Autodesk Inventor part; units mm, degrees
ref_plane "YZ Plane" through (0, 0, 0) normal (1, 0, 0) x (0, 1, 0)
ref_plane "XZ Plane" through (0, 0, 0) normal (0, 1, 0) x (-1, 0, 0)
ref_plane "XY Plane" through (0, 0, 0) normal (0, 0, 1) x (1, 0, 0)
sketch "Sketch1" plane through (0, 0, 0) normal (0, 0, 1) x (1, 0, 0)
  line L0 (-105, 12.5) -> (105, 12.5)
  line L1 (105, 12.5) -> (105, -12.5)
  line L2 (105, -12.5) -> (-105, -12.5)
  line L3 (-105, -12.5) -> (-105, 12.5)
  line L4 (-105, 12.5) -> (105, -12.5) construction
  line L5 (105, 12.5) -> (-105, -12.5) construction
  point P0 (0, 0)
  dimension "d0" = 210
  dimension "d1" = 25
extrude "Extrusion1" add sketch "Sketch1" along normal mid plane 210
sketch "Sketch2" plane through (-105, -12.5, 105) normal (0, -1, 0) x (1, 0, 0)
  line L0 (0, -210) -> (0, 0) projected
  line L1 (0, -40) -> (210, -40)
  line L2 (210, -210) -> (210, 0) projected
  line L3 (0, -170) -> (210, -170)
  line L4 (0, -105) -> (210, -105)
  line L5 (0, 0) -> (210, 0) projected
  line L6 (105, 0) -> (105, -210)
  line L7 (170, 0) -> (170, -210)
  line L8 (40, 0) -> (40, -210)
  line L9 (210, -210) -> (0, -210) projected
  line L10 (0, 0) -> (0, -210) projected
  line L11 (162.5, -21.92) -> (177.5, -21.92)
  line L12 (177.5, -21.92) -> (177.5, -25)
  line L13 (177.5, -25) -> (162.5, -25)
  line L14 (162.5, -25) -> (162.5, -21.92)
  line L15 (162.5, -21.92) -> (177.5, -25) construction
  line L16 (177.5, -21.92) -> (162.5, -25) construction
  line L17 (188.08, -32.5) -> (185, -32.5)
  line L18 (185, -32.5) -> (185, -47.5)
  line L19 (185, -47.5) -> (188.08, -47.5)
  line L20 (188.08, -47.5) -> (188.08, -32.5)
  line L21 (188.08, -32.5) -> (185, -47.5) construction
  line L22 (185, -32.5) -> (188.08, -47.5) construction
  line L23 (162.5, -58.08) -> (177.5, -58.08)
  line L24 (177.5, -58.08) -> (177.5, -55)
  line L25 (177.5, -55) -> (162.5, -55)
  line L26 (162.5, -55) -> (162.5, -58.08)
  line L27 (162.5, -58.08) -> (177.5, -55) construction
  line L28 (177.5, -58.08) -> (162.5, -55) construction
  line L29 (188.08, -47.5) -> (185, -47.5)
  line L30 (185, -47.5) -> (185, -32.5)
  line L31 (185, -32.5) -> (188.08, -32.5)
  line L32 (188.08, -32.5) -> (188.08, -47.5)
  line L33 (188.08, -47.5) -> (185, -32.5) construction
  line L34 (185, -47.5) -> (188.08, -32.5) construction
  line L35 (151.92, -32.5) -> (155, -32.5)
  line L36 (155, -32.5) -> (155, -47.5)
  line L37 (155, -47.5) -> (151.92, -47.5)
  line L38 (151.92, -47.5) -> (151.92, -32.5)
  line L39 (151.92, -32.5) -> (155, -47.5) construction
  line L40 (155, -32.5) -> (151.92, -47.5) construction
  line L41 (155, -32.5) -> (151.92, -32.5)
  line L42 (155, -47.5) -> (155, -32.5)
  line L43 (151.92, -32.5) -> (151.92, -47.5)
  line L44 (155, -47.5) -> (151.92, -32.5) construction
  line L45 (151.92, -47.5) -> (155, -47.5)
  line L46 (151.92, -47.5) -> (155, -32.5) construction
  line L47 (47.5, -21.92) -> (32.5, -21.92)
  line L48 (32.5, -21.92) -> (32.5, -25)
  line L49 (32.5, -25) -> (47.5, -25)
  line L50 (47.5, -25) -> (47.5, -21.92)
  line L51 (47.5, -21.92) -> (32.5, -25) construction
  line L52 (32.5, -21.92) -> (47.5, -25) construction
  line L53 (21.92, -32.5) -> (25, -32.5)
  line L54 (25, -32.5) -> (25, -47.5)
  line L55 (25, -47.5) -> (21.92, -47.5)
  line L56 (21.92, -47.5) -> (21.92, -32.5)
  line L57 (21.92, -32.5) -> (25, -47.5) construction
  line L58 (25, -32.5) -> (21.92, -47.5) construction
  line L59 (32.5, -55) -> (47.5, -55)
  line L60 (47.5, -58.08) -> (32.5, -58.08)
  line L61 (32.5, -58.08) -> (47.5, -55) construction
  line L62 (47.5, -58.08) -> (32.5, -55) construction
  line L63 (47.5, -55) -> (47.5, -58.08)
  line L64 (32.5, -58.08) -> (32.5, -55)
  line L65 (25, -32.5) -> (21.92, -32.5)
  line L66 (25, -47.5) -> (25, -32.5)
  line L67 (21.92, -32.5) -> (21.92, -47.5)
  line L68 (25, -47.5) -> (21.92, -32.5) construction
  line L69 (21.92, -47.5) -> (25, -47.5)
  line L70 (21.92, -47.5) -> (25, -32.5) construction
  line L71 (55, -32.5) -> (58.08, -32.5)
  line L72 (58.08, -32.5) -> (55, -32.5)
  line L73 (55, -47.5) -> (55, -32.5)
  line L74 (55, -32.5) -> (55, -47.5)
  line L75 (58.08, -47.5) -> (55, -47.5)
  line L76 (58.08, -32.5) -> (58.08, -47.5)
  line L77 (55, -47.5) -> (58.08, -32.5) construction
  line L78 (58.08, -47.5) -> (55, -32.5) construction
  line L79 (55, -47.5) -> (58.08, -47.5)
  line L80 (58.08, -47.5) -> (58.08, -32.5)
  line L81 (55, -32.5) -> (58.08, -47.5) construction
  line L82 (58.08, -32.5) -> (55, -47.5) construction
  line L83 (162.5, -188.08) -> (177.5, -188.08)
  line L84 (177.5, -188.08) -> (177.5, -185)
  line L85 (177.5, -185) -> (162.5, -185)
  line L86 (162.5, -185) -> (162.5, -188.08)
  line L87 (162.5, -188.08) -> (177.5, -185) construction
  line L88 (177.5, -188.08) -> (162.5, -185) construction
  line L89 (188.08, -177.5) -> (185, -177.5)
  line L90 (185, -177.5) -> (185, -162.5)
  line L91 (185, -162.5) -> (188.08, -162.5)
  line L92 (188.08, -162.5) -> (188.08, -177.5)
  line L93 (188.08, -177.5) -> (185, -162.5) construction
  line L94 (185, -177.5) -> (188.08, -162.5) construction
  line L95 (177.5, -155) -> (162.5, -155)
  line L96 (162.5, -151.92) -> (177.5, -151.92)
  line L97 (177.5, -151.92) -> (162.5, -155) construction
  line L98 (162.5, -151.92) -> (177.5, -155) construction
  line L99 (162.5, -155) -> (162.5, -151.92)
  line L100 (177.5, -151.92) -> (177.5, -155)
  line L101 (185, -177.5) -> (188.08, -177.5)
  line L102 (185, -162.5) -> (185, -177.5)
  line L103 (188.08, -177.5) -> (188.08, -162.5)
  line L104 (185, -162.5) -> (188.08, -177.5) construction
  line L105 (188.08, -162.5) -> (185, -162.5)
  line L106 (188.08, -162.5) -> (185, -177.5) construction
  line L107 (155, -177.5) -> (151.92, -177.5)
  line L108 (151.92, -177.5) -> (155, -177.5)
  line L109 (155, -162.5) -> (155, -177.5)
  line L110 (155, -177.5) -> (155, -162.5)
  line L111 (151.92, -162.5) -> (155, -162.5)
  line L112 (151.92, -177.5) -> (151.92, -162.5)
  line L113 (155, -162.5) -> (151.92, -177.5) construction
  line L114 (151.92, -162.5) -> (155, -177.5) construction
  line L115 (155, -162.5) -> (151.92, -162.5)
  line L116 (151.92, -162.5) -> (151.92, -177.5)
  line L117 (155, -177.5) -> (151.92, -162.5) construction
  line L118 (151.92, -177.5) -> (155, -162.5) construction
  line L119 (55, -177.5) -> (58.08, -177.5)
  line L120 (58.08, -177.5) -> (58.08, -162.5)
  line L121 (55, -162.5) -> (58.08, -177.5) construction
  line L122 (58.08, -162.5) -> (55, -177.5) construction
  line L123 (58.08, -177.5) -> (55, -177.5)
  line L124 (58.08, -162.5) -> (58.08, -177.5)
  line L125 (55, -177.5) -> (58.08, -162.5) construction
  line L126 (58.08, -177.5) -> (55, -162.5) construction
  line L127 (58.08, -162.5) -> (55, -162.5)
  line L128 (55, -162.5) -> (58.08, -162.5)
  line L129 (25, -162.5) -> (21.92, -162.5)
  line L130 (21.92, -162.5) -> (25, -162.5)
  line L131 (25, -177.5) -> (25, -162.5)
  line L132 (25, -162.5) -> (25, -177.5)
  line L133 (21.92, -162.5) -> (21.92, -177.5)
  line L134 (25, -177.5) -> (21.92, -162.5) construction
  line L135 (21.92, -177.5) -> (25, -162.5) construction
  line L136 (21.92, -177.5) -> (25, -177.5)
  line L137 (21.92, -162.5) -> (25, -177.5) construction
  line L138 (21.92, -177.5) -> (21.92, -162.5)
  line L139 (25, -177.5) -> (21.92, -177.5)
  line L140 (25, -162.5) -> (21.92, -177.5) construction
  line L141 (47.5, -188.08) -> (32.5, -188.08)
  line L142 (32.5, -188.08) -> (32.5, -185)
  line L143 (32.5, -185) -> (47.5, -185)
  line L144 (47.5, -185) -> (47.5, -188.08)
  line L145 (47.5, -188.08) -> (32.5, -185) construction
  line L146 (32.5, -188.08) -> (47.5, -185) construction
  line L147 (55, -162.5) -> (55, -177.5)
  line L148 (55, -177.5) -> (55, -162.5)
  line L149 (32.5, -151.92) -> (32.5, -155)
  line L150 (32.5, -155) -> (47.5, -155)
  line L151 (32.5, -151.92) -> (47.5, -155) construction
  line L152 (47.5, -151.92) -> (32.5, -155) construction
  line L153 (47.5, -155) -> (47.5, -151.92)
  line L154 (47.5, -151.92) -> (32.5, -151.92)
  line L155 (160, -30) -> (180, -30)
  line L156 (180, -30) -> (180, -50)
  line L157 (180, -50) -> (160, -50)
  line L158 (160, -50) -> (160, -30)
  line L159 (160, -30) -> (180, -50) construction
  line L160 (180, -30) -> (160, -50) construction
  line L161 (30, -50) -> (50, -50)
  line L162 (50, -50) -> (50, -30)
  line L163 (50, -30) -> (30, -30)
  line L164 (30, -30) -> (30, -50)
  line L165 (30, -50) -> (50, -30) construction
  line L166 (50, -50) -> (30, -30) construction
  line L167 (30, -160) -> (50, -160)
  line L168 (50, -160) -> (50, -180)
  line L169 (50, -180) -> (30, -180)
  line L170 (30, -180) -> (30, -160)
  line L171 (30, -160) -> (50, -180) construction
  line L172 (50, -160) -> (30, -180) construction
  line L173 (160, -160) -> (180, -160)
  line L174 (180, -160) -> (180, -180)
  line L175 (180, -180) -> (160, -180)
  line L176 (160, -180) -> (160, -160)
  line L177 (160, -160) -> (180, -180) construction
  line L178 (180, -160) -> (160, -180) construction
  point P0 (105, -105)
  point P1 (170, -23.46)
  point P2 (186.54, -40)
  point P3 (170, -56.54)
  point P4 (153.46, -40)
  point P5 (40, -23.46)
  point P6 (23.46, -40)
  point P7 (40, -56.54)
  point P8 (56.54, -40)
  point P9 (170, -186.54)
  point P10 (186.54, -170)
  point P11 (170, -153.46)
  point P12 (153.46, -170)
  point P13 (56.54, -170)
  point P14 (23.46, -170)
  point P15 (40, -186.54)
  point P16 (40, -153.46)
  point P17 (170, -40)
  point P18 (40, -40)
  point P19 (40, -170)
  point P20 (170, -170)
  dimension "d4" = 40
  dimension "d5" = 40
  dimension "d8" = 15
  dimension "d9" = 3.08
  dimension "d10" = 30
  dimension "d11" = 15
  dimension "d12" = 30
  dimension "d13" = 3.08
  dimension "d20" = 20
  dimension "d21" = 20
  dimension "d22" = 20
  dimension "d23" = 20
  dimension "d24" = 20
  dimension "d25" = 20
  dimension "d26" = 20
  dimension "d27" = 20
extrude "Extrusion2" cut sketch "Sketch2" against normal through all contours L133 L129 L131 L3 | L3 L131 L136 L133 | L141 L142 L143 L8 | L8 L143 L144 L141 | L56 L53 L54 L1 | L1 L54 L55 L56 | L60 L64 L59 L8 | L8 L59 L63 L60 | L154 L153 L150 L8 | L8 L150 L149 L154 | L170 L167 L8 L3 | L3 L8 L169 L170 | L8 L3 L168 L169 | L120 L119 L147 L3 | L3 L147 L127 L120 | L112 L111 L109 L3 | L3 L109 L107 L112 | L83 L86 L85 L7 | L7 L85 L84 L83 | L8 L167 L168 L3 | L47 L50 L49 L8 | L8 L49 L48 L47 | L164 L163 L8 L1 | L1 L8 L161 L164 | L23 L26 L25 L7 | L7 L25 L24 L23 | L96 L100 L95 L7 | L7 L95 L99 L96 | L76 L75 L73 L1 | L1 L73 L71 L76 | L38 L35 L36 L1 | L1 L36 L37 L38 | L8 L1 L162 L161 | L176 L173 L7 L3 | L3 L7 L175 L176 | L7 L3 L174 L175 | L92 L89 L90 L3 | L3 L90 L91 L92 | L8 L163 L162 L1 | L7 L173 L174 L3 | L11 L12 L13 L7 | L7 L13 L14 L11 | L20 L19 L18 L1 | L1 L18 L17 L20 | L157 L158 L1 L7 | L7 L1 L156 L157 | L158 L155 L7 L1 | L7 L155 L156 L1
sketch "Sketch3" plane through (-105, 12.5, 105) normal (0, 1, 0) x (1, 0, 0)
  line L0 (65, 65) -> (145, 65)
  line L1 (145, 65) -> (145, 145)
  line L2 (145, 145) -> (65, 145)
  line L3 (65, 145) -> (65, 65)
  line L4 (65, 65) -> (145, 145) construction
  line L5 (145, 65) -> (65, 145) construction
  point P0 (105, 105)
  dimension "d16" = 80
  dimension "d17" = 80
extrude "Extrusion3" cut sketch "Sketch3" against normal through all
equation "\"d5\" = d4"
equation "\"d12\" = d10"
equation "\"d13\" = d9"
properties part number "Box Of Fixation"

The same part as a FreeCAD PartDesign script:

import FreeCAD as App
import Part
import Sketcher
from FreeCAD import Vector

doc = App.newDocument("Part")
body = doc.addObject("PartDesign::Body", "Body")

# Sketch on XY plane
sketch1 = doc.addObject("Sketcher::SketchObject", "Sketch")
body.addObject(sketch1)
sketch1.AttachmentSupport = (doc.XY_Plane, [""])
sketch1.MapMode = "FlatFace"
sketch1.addGeometry([
    Part.LineSegment(Vector(105, 12.5, 0), Vector(-105, 12.5, 0)),
    Part.LineSegment(Vector(-105, 12.5, 0), Vector(-105, -12.5, 0)),
    Part.LineSegment(Vector(-105, -12.5, 0), Vector(105, -12.5, 0)),
    Part.LineSegment(Vector(105, -12.5, 0), Vector(105, 12.5, 0)),
], False)
sketch1.addConstraint([
    Sketcher.Constraint("Coincident", 0, 2, 1, 1),
    Sketcher.Constraint("Coincident", 1, 2, 2, 1),
    Sketcher.Constraint("Coincident", 2, 2, 3, 1),
    Sketcher.Constraint("Coincident", 3, 2, 0, 1),
    Sketcher.Constraint("Horizontal", 0),
    Sketcher.Constraint("Vertical", 1),
    Sketcher.Constraint("Horizontal", 2),
    Sketcher.Constraint("Vertical", 3),
    Sketcher.Constraint("Symmetric", 0, 2, 2, 2, -1, 1),
    Sketcher.Constraint("DistanceX", 0, 2, 0, 1, 210.0),
    Sketcher.Constraint("DistanceY", 1, 2, 1, 1, 25.0),
])
pad1 = doc.addObject("PartDesign::Pad", "Pad")
body.addObject(pad1)
pad1.Profile = sketch1
pad1.Length = 210
pad1.Midplane = True

# Sketch on XZ plane
sketch2 = doc.addObject("Sketcher::SketchObject", "Sketch001")
body.addObject(sketch2)
sketch2.AttachmentSupport = (doc.XZ_Plane, [""])
sketch2.MapMode = "FlatFace"
sketch2.AttachmentOffset = App.Placement(Vector(0, 0, 12.5), App.Rotation())
sketch2.addGeometry([
    Part.LineSegment(Vector(-83.08, -57.5, 0), Vector(-83.08, -72.5, 0)),  # 0
    Part.LineSegment(Vector(-83.08, -72.5, 0), Vector(-80, -72.5, 0)),  # 1
    Part.LineSegment(Vector(-80, -72.5, 0), Vector(-80, -57.5, 0)),  # 2
    Part.LineSegment(Vector(-80, -57.5, 0), Vector(-83.08, -57.5, 0)),  # 3
    Part.LineSegment(Vector(-72.5, -83.08, 0), Vector(-57.5, -83.08, 0)),  # 4
    Part.LineSegment(Vector(-57.5, -83.08, 0), Vector(-57.5, -80, 0)),  # 5
    Part.LineSegment(Vector(-57.5, -80, 0), Vector(-72.5, -80, 0)),  # 6
    Part.LineSegment(Vector(-72.5, -80, 0), Vector(-72.5, -83.08, 0)),  # 7
    Part.LineSegment(Vector(-83.08, 72.5, 0), Vector(-83.08, 57.5, 0)),  # 8
    Part.LineSegment(Vector(-83.08, 57.5, 0), Vector(-80, 57.5, 0)),  # 9
    Part.LineSegment(Vector(-80, 57.5, 0), Vector(-80, 72.5, 0)),  # 10
    Part.LineSegment(Vector(-80, 72.5, 0), Vector(-83.08, 72.5, 0)),  # 11
    Part.LineSegment(Vector(-72.5, 46.92, 0), Vector(-57.5, 46.92, 0)),  # 12
    Part.LineSegment(Vector(-57.5, 46.92, 0), Vector(-57.5, 50, 0)),  # 13
    Part.LineSegment(Vector(-57.5, 50, 0), Vector(-72.5, 50, 0)),  # 14
    Part.LineSegment(Vector(-72.5, 50, 0), Vector(-72.5, 46.92, 0)),  # 15
    Part.LineSegment(Vector(-57.5, -46.92, 0), Vector(-72.5, -46.92, 0)),  # 16
    Part.LineSegment(Vector(-72.5, -46.92, 0), Vector(-72.5, -50, 0)),  # 17
    Part.LineSegment(Vector(-72.5, -50, 0), Vector(-57.5, -50, 0)),  # 18
    Part.LineSegment(Vector(-57.5, -50, 0), Vector(-57.5, -46.92, 0)),  # 19
    Part.LineSegment(Vector(-75, -55, 0), Vector(-75, -75, 0)),  # 20
    Part.LineSegment(Vector(-75, -75, 0), Vector(-55, -75, 0)),  # 21
    Part.LineSegment(Vector(-55, -75, 0), Vector(-55, -55, 0)),  # 22
    Part.LineSegment(Vector(-55, -55, 0), Vector(-75, -55, 0)),  # 23
    Part.LineSegment(Vector(-46.92, -72.5, 0), Vector(-46.92, -57.5, 0)),  # 24
    Part.LineSegment(Vector(-46.92, -57.5, 0), Vector(-50, -57.5, 0)),  # 25
    Part.LineSegment(Vector(-50, -57.5, 0), Vector(-50, -72.5, 0)),  # 26
    Part.LineSegment(Vector(-50, -72.5, 0), Vector(-46.92, -72.5, 0)),  # 27
    Part.LineSegment(Vector(46.92, -57.5, 0), Vector(46.92, -72.5, 0)),  # 28
    Part.LineSegment(Vector(46.92, -72.5, 0), Vector(50, -72.5, 0)),  # 29
    Part.LineSegment(Vector(50, -72.5, 0), Vector(50, -57.5, 0)),  # 30
    Part.LineSegment(Vector(50, -57.5, 0), Vector(46.92, -57.5, 0)),  # 31
    Part.LineSegment(Vector(57.5, -83.08, 0), Vector(72.5, -83.08, 0)),  # 32
    Part.LineSegment(Vector(72.5, -83.08, 0), Vector(72.5, -80, 0)),  # 33
    Part.LineSegment(Vector(72.5, -80, 0), Vector(57.5, -80, 0)),  # 34
    Part.LineSegment(Vector(57.5, -80, 0), Vector(57.5, -83.08, 0)),  # 35
    Part.LineSegment(Vector(-57.5, 83.08, 0), Vector(-72.5, 83.08, 0)),  # 36
    Part.LineSegment(Vector(-72.5, 83.08, 0), Vector(-72.5, 80, 0)),  # 37
    Part.LineSegment(Vector(-72.5, 80, 0), Vector(-57.5, 80, 0)),  # 38
    Part.LineSegment(Vector(-57.5, 80, 0), Vector(-57.5, 83.08, 0)),  # 39
    Part.LineSegment(Vector(-75, 75, 0), Vector(-75, 55, 0)),  # 40
    Part.LineSegment(Vector(-75, 55, 0), Vector(-55, 55, 0)),  # 41
    Part.LineSegment(Vector(-55, 55, 0), Vector(-55, 75, 0)),  # 42
    Part.LineSegment(Vector(-55, 75, 0), Vector(-75, 75, 0)),  # 43
    Part.LineSegment(Vector(57.5, 46.92, 0), Vector(72.5, 46.92, 0)),  # 44
    Part.LineSegment(Vector(72.5, 46.92, 0), Vector(72.5, 50, 0)),  # 45
    Part.LineSegment(Vector(72.5, 50, 0), Vector(57.5, 50, 0)),  # 46
    Part.LineSegment(Vector(57.5, 50, 0), Vector(57.5, 46.92, 0)),  # 47
    Part.LineSegment(Vector(72.5, -46.92, 0), Vector(57.5, -46.92, 0)),  # 48
    Part.LineSegment(Vector(57.5, -46.92, 0), Vector(57.5, -50, 0)),  # 49
    Part.LineSegment(Vector(57.5, -50, 0), Vector(72.5, -50, 0)),  # 50
    Part.LineSegment(Vector(72.5, -50, 0), Vector(72.5, -46.92, 0)),  # 51
    Part.LineSegment(Vector(-46.92, 57.5, 0), Vector(-46.92, 72.5, 0)),  # 52
    Part.LineSegment(Vector(-46.92, 72.5, 0), Vector(-50, 72.5, 0)),  # 53
    Part.LineSegment(Vector(-50, 72.5, 0), Vector(-50, 57.5, 0)),  # 54
    Part.LineSegment(Vector(-50, 57.5, 0), Vector(-46.92, 57.5, 0)),  # 55
    Part.LineSegment(Vector(46.92, 72.5, 0), Vector(46.92, 57.5, 0)),  # 56
    Part.LineSegment(Vector(46.92, 57.5, 0), Vector(50, 57.5, 0)),  # 57
    Part.LineSegment(Vector(50, 57.5, 0), Vector(50, 72.5, 0)),  # 58
    Part.LineSegment(Vector(50, 72.5, 0), Vector(46.92, 72.5, 0)),  # 59
    Part.LineSegment(Vector(55, -55, 0), Vector(55, -75, 0)),  # 60
    Part.LineSegment(Vector(55, -75, 0), Vector(75, -75, 0)),  # 61
    Part.LineSegment(Vector(75, -75, 0), Vector(75, -55, 0)),  # 62
    Part.LineSegment(Vector(75, -55, 0), Vector(55, -55, 0)),  # 63
    Part.LineSegment(Vector(83.08, -72.5, 0), Vector(83.08, -57.5, 0)),  # 64
    Part.LineSegment(Vector(83.08, -57.5, 0), Vector(80, -57.5, 0)),  # 65
    Part.LineSegment(Vector(80, -57.5, 0), Vector(80, -72.5, 0)),  # 66
    Part.LineSegment(Vector(80, -72.5, 0), Vector(83.08, -72.5, 0)),  # 67
    Part.LineSegment(Vector(72.5, 83.08, 0), Vector(57.5, 83.08, 0)),  # 68
    Part.LineSegment(Vector(57.5, 83.08, 0), Vector(57.5, 80, 0)),  # 69
    Part.LineSegment(Vector(57.5, 80, 0), Vector(72.5, 80, 0)),  # 70
    Part.LineSegment(Vector(72.5, 80, 0), Vector(72.5, 83.08, 0)),  # 71
    Part.LineSegment(Vector(83.08, 57.5, 0), Vector(83.08, 72.5, 0)),  # 72
    Part.LineSegment(Vector(83.08, 72.5, 0), Vector(80, 72.5, 0)),  # 73
    Part.LineSegment(Vector(80, 72.5, 0), Vector(80, 57.5, 0)),  # 74
    Part.LineSegment(Vector(80, 57.5, 0), Vector(83.08, 57.5, 0)),  # 75
    Part.LineSegment(Vector(55, 55, 0), Vector(75, 55, 0)),  # 76
    Part.LineSegment(Vector(75, 55, 0), Vector(75, 75, 0)),  # 77
    Part.LineSegment(Vector(75, 75, 0), Vector(55, 75, 0)),  # 78
    Part.LineSegment(Vector(55, 75, 0), Vector(55, 55, 0)),  # 79
], False)
sketch2.addConstraint([
    Sketcher.Constraint("Coincident", 0, 2, 1, 1),
    Sketcher.Constraint("Coincident", 1, 2, 2, 1),
    Sketcher.Constraint("Coincident", 2, 2, 3, 1),
    Sketcher.Constraint("Coincident", 3, 2, 0, 1),
    Sketcher.Constraint("Coincident", 4, 2, 5, 1),
    Sketcher.Constraint("Coincident", 5, 2, 6, 1),
    Sketcher.Constraint("Coincident", 6, 2, 7, 1),
    Sketcher.Constraint("Coincident", 7, 2, 4, 1),
    Sketcher.Constraint("Coincident", 8, 2, 9, 1),
    Sketcher.Constraint("Coincident", 9, 2, 10, 1),
    Sketcher.Constraint("Coincident", 10, 2, 11, 1),
    Sketcher.Constraint("Coincident", 11, 2, 8, 1),
    Sketcher.Constraint("Coincident", 12, 2, 13, 1),
    Sketcher.Constraint("Coincident", 13, 2, 14, 1),
    Sketcher.Constraint("Coincident", 14, 2, 15, 1),
    Sketcher.Constraint("Coincident", 15, 2, 12, 1),
    Sketcher.Constraint("Coincident", 16, 2, 17, 1),
    Sketcher.Constraint("Coincident", 17, 2, 18, 1),
    Sketcher.Constraint("Coincident", 18, 2, 19, 1),
    Sketcher.Constraint("Coincident", 19, 2, 16, 1),
    Sketcher.Constraint("Coincident", 20, 2, 21, 1),
    Sketcher.Constraint("Coincident", 21, 2, 22, 1),
    Sketcher.Constraint("Coincident", 22, 2, 23, 1),
    Sketcher.Constraint("Coincident", 23, 2, 20, 1),
    Sketcher.Constraint("Coincident", 24, 2, 25, 1),
    Sketcher.Constraint("Coincident", 25, 2, 26, 1),
    Sketcher.Constraint("Coincident", 26, 2, 27, 1),
    Sketcher.Constraint("Coincident", 27, 2, 24, 1),
    Sketcher.Constraint("Coincident", 28, 2, 29, 1),
    Sketcher.Constraint("Coincident", 29, 2, 30, 1),
    Sketcher.Constraint("Coincident", 30, 2, 31, 1),
    Sketcher.Constraint("Coincident", 31, 2, 28, 1),
    Sketcher.Constraint("Coincident", 32, 2, 33, 1),
    Sketcher.Constraint("Coincident", 33, 2, 34, 1),
    Sketcher.Constraint("Coincident", 34, 2, 35, 1),
    Sketcher.Constraint("Coincident", 35, 2, 32, 1),
    Sketcher.Constraint("Coincident", 36, 2, 37, 1),
    Sketcher.Constraint("Coincident", 37, 2, 38, 1),
    Sketcher.Constraint("Coincident", 38, 2, 39, 1),
    Sketcher.Constraint("Coincident", 39, 2, 36, 1),
    Sketcher.Constraint("Coincident", 40, 2, 41, 1),
    Sketcher.Constraint("Coincident", 41, 2, 42, 1),
    Sketcher.Constraint("Coincident", 42, 2, 43, 1),
    Sketcher.Constraint("Coincident", 43, 2, 40, 1),
    Sketcher.Constraint("Coincident", 44, 2, 45, 1),
    Sketcher.Constraint("Coincident", 45, 2, 46, 1),
    Sketcher.Constraint("Coincident", 46, 2, 47, 1),
    Sketcher.Constraint("Coincident", 47, 2, 44, 1),
    Sketcher.Constraint("Coincident", 48, 2, 49, 1),
    Sketcher.Constraint("Coincident", 49, 2, 50, 1),
    Sketcher.Constraint("Coincident", 50, 2, 51, 1),
    Sketcher.Constraint("Coincident", 51, 2, 48, 1),
    Sketcher.Constraint("Coincident", 52, 2, 53, 1),
    Sketcher.Constraint("Coincident", 53, 2, 54, 1),
    Sketcher.Constraint("Coincident", 54, 2, 55, 1),
    Sketcher.Constraint("Coincident", 55, 2, 52, 1),
    Sketcher.Constraint("Coincident", 56, 2, 57, 1),
    Sketcher.Constraint("Coincident", 57, 2, 58, 1),
    Sketcher.Constraint("Coincident", 58, 2, 59, 1),
    Sketcher.Constraint("Coincident", 59, 2, 56, 1),
    Sketcher.Constraint("Coincident", 60, 2, 61, 1),
    Sketcher.Constraint("Coincident", 61, 2, 62, 1),
    Sketcher.Constraint("Coincident", 62, 2, 63, 1),
    Sketcher.Constraint("Coincident", 63, 2, 60, 1),
    Sketcher.Constraint("Coincident", 64, 2, 65, 1),
    Sketcher.Constraint("Coincident", 65, 2, 66, 1),
    Sketcher.Constraint("Coincident", 66, 2, 67, 1),
    Sketcher.Constraint("Coincident", 67, 2, 64, 1),
    Sketcher.Constraint("Coincident", 68, 2, 69, 1),
    Sketcher.Constraint("Coincident", 69, 2, 70, 1),
    Sketcher.Constraint("Coincident", 70, 2, 71, 1),
    Sketcher.Constraint("Coincident", 71, 2, 68, 1),
    Sketcher.Constraint("Coincident", 72, 2, 73, 1),
    Sketcher.Constraint("Coincident", 73, 2, 74, 1),
    Sketcher.Constraint("Coincident", 74, 2, 75, 1),
    Sketcher.Constraint("Coincident", 75, 2, 72, 1),
    Sketcher.Constraint("Coincident", 76, 2, 77, 1),
    Sketcher.Constraint("Coincident", 77, 2, 78, 1),
    Sketcher.Constraint("Coincident", 78, 2, 79, 1),
    Sketcher.Constraint("Coincident", 79, 2, 76, 1),
    Sketcher.Constraint("Vertical", 0),
    Sketcher.Constraint("Horizontal", 1),
    Sketcher.Constraint("Vertical", 2),
    Sketcher.Constraint("Horizontal", 3),
    Sketcher.Constraint("Horizontal", 4),
    Sketcher.Constraint("Vertical", 5),
    Sketcher.Constraint("Horizontal", 6),
    Sketcher.Constraint("Vertical", 7),
    Sketcher.Constraint("Vertical", 8),
    Sketcher.Constraint("Horizontal", 9),
    Sketcher.Constraint("Vertical", 10),
    Sketcher.Constraint("Horizontal", 11),
    Sketcher.Constraint("Horizontal", 12),
    Sketcher.Constraint("Vertical", 13),
    Sketcher.Constraint("Horizontal", 14),
    Sketcher.Constraint("Vertical", 15),
    Sketcher.Constraint("Horizontal", 16),
    Sketcher.Constraint("Vertical", 17),
    Sketcher.Constraint("Horizontal", 18),
    Sketcher.Constraint("Vertical", 19),
    Sketcher.Constraint("Vertical", 20),
    Sketcher.Constraint("Horizontal", 21),
    Sketcher.Constraint("Vertical", 22),
    Sketcher.Constraint("Horizontal", 23),
    Sketcher.Constraint("Vertical", 24),
    Sketcher.Constraint("Horizontal", 25),
    Sketcher.Constraint("Vertical", 26),
    Sketcher.Constraint("Horizontal", 27),
    Sketcher.Constraint("Vertical", 28),
    Sketcher.Constraint("Horizontal", 29),
    Sketcher.Constraint("Vertical", 30),
    Sketcher.Constraint("Horizontal", 31),
    Sketcher.Constraint("Horizontal", 32),
    Sketcher.Constraint("Vertical", 33),
    Sketcher.Constraint("Horizontal", 34),
    Sketcher.Constraint("Vertical", 35),
    Sketcher.Constraint("Horizontal", 36),
    Sketcher.Constraint("Vertical", 37),
    Sketcher.Constraint("Horizontal", 38),
    Sketcher.Constraint("Vertical", 39),
    Sketcher.Constraint("Vertical", 40),
    Sketcher.Constraint("Horizontal", 41),
    Sketcher.Constraint("Vertical", 42),
    Sketcher.Constraint("Horizontal", 43),
    Sketcher.Constraint("Horizontal", 44),
    Sketcher.Constraint("Vertical", 45),
    Sketcher.Constraint("Horizontal", 46),
    Sketcher.Constraint("Vertical", 47),
    Sketcher.Constraint("Horizontal", 48),
    Sketcher.Constraint("Vertical", 49),
    Sketcher.Constraint("Horizontal", 50),
    Sketcher.Constraint("Vertical", 51),
    Sketcher.Constraint("Vertical", 52),
    Sketcher.Constraint("Horizontal", 53),
    Sketcher.Constraint("Vertical", 54),
    Sketcher.Constraint("Horizontal", 55),
    Sketcher.Constraint("Vertical", 56),
    Sketcher.Constraint("Horizontal", 57),
    Sketcher.Constraint("Vertical", 58),
    Sketcher.Constraint("Horizontal", 59),
    Sketcher.Constraint("Vertical", 60),
    Sketcher.Constraint("Horizontal", 61),
    Sketcher.Constraint("Vertical", 62),
    Sketcher.Constraint("Horizontal", 63),
    Sketcher.Constraint("Vertical", 64),
    Sketcher.Constraint("Horizontal", 65),
    Sketcher.Constraint("Vertical", 66),
    Sketcher.Constraint("Horizontal", 67),
    Sketcher.Constraint("Horizontal", 68),
    Sketcher.Constraint("Vertical", 69),
    Sketcher.Constraint("Horizontal", 70),
    Sketcher.Constraint("Vertical", 71),
    Sketcher.Constraint("Vertical", 72),
    Sketcher.Constraint("Horizontal", 73),
    Sketcher.Constraint("Vertical", 74),
    Sketcher.Constraint("Horizontal", 75),
    Sketcher.Constraint("Horizontal", 76),
    Sketcher.Constraint("Vertical", 77),
    Sketcher.Constraint("Horizontal", 78),
    Sketcher.Constraint("Vertical", 79),
    Sketcher.Constraint("Symmetric", 32, 2, 36, 2, -1, 1),
    Sketcher.Constraint("Symmetric", 34, 2, 38, 2, -1, 1),
    Sketcher.Constraint("Symmetric", 16, 2, 44, 2, -1, 1),
    Sketcher.Constraint("Symmetric", 18, 2, 46, 2, -1, 1),
    Sketcher.Constraint("Symmetric", 12, 2, 48, 2, -1, 1),
    Sketcher.Constraint("Symmetric", 14, 2, 50, 2, -1, 1),
    Sketcher.Constraint("Symmetric", 28, 2, 52, 2, -1, 1),
    Sketcher.Constraint("Symmetric", 30, 2, 54, 2, -1, 1),
    Sketcher.Constraint("Symmetric", 24, 2, 56, 2, -1, 1),
    Sketcher.Constraint("Symmetric", 26, 2, 58, 2, -1, 1),
    Sketcher.Constraint("Symmetric", 42, 2, 60, 2, -1, 1),
    Sketcher.Constraint("Symmetric", 40, 2, 62, 2, -1, 1),
    Sketcher.Constraint("Symmetric", 8, 2, 64, 2, -1, 1),
    Sketcher.Constraint("Symmetric", 10, 2, 66, 2, -1, 1),
    Sketcher.Constraint("Symmetric", 4, 2, 68, 2, -1, 1),
    Sketcher.Constraint("Symmetric", 6, 2, 70, 2, -1, 1),
    Sketcher.Constraint("Symmetric", 0, 2, 72, 2, -1, 1),
    Sketcher.Constraint("Symmetric", 2, 2, 74, 2, -1, 1),
    Sketcher.Constraint("Symmetric", 23, 2, 76, 2, -1, 1),
    Sketcher.Constraint("Symmetric", 21, 2, 78, 2, -1, 1),
    Sketcher.Constraint("Symmetric", 27, 2, 28, 2, -2),
    Sketcher.Constraint("Symmetric", 25, 2, 30, 2, -2),
    Sketcher.Constraint("Symmetric", 7, 2, 32, 2, -2),
    Sketcher.Constraint("Symmetric", 5, 2, 34, 2, -2),
    Sketcher.Constraint("Symmetric", 15, 2, 44, 2, -2),
    Sketcher.Constraint("Symmetric", 13, 2, 46, 2, -2),
    Sketcher.Constraint("Symmetric", 21, 2, 60, 2, -2),
    Sketcher.Constraint("Symmetric", 23, 2, 62, 2, -2),
    Sketcher.Constraint("Symmetric", 3, 2, 64, 2, -2),
    Sketcher.Constraint("Symmetric", 1, 2, 66, 2, -2),
    Sketcher.Constraint("Horizontal", 3, 2, 24, 2),
    Sketcher.Constraint("Horizontal", 1, 2, 26, 2),
    Sketcher.Constraint("Vertical", 5, 2, 12, 2),
    Sketcher.Constraint("Vertical", 7, 2, 14, 2),
    Sketcher.Constraint("Equal", 11, 25),
    Sketcher.Constraint("Equal", 70, 0),
    Sketcher.Constraint("Equal", 75, 5),
    Sketcher.Constraint("Equal", 7, 13),
    Sketcher.Constraint("Equal", 78, 20),
    Sketcher.Constraint("DistanceX", 4, 1, 4, 2, 15.0),
    Sketcher.Constraint("DistanceX", 21, 1, 21, 2, 20.0),
    Sketcher.Constraint("DistanceX", 1, 1, 1, 2, 3.08),
    Sketcher.Constraint("DistanceX", 1, 2, -1, 1, 80.0),
    Sketcher.Constraint("DistanceY", 5, 2, -1, 1, 80.0),
    Sketcher.Constraint("DistanceY", -1, 1, 13, 2, 50.0),
    Sketcher.Constraint("DistanceX", 20, 2, -1, 1, 75.0),
    Sketcher.Constraint("DistanceY", 20, 2, -1, 1, 75.0),
    Sketcher.Constraint("DistanceX", 25, 2, -1, 1, 50.0),
    Sketcher.Constraint("DistanceY", 0, 2, -1, 1, 72.5),
    Sketcher.Constraint("DistanceX", 4, 2, -1, 1, 57.5),
])
pocket1 = doc.addObject("PartDesign::Pocket", "Pocket")
body.addObject(pocket1)
pocket1.Profile = sketch2
pocket1.Type = "ThroughAll"

# Sketch on XZ plane
sketch3 = doc.addObject("Sketcher::SketchObject", "Sketch002")
body.addObject(sketch3)
sketch3.AttachmentSupport = (doc.XZ_Plane, [""])
sketch3.MapMode = "FlatFace"
sketch3.AttachmentOffset = App.Placement(Vector(0, 0, -12.5), App.Rotation())
sketch3.addGeometry([
    Part.LineSegment(Vector(-40, -40, 0), Vector(-40, 40, 0)),
    Part.LineSegment(Vector(-40, 40, 0), Vector(40, 40, 0)),
    Part.LineSegment(Vector(40, 40, 0), Vector(40, -40, 0)),
    Part.LineSegment(Vector(40, -40, 0), Vector(-40, -40, 0)),
], False)
sketch3.addConstraint([
    Sketcher.Constraint("Coincident", 0, 2, 1, 1),
    Sketcher.Constraint("Coincident", 1, 2, 2, 1),
    Sketcher.Constraint("Coincident", 2, 2, 3, 1),
    Sketcher.Constraint("Coincident", 3, 2, 0, 1),
    Sketcher.Constraint("Vertical", 0),
    Sketcher.Constraint("Horizontal", 1),
    Sketcher.Constraint("Vertical", 2),
    Sketcher.Constraint("Horizontal", 3),
    Sketcher.Constraint("Symmetric", 0, 2, 2, 2, -1, 1),
    Sketcher.Constraint("Equal", 3, 0),
    Sketcher.Constraint("DistanceX", 1, 1, 1, 2, 80.0),
])
pocket2 = doc.addObject("PartDesign::Pocket", "Pocket001")
body.addObject(pocket2)
pocket2.Profile = sketch3
pocket2.Type = "ThroughAll"
pocket2.Reversed = True

doc.recompute()
